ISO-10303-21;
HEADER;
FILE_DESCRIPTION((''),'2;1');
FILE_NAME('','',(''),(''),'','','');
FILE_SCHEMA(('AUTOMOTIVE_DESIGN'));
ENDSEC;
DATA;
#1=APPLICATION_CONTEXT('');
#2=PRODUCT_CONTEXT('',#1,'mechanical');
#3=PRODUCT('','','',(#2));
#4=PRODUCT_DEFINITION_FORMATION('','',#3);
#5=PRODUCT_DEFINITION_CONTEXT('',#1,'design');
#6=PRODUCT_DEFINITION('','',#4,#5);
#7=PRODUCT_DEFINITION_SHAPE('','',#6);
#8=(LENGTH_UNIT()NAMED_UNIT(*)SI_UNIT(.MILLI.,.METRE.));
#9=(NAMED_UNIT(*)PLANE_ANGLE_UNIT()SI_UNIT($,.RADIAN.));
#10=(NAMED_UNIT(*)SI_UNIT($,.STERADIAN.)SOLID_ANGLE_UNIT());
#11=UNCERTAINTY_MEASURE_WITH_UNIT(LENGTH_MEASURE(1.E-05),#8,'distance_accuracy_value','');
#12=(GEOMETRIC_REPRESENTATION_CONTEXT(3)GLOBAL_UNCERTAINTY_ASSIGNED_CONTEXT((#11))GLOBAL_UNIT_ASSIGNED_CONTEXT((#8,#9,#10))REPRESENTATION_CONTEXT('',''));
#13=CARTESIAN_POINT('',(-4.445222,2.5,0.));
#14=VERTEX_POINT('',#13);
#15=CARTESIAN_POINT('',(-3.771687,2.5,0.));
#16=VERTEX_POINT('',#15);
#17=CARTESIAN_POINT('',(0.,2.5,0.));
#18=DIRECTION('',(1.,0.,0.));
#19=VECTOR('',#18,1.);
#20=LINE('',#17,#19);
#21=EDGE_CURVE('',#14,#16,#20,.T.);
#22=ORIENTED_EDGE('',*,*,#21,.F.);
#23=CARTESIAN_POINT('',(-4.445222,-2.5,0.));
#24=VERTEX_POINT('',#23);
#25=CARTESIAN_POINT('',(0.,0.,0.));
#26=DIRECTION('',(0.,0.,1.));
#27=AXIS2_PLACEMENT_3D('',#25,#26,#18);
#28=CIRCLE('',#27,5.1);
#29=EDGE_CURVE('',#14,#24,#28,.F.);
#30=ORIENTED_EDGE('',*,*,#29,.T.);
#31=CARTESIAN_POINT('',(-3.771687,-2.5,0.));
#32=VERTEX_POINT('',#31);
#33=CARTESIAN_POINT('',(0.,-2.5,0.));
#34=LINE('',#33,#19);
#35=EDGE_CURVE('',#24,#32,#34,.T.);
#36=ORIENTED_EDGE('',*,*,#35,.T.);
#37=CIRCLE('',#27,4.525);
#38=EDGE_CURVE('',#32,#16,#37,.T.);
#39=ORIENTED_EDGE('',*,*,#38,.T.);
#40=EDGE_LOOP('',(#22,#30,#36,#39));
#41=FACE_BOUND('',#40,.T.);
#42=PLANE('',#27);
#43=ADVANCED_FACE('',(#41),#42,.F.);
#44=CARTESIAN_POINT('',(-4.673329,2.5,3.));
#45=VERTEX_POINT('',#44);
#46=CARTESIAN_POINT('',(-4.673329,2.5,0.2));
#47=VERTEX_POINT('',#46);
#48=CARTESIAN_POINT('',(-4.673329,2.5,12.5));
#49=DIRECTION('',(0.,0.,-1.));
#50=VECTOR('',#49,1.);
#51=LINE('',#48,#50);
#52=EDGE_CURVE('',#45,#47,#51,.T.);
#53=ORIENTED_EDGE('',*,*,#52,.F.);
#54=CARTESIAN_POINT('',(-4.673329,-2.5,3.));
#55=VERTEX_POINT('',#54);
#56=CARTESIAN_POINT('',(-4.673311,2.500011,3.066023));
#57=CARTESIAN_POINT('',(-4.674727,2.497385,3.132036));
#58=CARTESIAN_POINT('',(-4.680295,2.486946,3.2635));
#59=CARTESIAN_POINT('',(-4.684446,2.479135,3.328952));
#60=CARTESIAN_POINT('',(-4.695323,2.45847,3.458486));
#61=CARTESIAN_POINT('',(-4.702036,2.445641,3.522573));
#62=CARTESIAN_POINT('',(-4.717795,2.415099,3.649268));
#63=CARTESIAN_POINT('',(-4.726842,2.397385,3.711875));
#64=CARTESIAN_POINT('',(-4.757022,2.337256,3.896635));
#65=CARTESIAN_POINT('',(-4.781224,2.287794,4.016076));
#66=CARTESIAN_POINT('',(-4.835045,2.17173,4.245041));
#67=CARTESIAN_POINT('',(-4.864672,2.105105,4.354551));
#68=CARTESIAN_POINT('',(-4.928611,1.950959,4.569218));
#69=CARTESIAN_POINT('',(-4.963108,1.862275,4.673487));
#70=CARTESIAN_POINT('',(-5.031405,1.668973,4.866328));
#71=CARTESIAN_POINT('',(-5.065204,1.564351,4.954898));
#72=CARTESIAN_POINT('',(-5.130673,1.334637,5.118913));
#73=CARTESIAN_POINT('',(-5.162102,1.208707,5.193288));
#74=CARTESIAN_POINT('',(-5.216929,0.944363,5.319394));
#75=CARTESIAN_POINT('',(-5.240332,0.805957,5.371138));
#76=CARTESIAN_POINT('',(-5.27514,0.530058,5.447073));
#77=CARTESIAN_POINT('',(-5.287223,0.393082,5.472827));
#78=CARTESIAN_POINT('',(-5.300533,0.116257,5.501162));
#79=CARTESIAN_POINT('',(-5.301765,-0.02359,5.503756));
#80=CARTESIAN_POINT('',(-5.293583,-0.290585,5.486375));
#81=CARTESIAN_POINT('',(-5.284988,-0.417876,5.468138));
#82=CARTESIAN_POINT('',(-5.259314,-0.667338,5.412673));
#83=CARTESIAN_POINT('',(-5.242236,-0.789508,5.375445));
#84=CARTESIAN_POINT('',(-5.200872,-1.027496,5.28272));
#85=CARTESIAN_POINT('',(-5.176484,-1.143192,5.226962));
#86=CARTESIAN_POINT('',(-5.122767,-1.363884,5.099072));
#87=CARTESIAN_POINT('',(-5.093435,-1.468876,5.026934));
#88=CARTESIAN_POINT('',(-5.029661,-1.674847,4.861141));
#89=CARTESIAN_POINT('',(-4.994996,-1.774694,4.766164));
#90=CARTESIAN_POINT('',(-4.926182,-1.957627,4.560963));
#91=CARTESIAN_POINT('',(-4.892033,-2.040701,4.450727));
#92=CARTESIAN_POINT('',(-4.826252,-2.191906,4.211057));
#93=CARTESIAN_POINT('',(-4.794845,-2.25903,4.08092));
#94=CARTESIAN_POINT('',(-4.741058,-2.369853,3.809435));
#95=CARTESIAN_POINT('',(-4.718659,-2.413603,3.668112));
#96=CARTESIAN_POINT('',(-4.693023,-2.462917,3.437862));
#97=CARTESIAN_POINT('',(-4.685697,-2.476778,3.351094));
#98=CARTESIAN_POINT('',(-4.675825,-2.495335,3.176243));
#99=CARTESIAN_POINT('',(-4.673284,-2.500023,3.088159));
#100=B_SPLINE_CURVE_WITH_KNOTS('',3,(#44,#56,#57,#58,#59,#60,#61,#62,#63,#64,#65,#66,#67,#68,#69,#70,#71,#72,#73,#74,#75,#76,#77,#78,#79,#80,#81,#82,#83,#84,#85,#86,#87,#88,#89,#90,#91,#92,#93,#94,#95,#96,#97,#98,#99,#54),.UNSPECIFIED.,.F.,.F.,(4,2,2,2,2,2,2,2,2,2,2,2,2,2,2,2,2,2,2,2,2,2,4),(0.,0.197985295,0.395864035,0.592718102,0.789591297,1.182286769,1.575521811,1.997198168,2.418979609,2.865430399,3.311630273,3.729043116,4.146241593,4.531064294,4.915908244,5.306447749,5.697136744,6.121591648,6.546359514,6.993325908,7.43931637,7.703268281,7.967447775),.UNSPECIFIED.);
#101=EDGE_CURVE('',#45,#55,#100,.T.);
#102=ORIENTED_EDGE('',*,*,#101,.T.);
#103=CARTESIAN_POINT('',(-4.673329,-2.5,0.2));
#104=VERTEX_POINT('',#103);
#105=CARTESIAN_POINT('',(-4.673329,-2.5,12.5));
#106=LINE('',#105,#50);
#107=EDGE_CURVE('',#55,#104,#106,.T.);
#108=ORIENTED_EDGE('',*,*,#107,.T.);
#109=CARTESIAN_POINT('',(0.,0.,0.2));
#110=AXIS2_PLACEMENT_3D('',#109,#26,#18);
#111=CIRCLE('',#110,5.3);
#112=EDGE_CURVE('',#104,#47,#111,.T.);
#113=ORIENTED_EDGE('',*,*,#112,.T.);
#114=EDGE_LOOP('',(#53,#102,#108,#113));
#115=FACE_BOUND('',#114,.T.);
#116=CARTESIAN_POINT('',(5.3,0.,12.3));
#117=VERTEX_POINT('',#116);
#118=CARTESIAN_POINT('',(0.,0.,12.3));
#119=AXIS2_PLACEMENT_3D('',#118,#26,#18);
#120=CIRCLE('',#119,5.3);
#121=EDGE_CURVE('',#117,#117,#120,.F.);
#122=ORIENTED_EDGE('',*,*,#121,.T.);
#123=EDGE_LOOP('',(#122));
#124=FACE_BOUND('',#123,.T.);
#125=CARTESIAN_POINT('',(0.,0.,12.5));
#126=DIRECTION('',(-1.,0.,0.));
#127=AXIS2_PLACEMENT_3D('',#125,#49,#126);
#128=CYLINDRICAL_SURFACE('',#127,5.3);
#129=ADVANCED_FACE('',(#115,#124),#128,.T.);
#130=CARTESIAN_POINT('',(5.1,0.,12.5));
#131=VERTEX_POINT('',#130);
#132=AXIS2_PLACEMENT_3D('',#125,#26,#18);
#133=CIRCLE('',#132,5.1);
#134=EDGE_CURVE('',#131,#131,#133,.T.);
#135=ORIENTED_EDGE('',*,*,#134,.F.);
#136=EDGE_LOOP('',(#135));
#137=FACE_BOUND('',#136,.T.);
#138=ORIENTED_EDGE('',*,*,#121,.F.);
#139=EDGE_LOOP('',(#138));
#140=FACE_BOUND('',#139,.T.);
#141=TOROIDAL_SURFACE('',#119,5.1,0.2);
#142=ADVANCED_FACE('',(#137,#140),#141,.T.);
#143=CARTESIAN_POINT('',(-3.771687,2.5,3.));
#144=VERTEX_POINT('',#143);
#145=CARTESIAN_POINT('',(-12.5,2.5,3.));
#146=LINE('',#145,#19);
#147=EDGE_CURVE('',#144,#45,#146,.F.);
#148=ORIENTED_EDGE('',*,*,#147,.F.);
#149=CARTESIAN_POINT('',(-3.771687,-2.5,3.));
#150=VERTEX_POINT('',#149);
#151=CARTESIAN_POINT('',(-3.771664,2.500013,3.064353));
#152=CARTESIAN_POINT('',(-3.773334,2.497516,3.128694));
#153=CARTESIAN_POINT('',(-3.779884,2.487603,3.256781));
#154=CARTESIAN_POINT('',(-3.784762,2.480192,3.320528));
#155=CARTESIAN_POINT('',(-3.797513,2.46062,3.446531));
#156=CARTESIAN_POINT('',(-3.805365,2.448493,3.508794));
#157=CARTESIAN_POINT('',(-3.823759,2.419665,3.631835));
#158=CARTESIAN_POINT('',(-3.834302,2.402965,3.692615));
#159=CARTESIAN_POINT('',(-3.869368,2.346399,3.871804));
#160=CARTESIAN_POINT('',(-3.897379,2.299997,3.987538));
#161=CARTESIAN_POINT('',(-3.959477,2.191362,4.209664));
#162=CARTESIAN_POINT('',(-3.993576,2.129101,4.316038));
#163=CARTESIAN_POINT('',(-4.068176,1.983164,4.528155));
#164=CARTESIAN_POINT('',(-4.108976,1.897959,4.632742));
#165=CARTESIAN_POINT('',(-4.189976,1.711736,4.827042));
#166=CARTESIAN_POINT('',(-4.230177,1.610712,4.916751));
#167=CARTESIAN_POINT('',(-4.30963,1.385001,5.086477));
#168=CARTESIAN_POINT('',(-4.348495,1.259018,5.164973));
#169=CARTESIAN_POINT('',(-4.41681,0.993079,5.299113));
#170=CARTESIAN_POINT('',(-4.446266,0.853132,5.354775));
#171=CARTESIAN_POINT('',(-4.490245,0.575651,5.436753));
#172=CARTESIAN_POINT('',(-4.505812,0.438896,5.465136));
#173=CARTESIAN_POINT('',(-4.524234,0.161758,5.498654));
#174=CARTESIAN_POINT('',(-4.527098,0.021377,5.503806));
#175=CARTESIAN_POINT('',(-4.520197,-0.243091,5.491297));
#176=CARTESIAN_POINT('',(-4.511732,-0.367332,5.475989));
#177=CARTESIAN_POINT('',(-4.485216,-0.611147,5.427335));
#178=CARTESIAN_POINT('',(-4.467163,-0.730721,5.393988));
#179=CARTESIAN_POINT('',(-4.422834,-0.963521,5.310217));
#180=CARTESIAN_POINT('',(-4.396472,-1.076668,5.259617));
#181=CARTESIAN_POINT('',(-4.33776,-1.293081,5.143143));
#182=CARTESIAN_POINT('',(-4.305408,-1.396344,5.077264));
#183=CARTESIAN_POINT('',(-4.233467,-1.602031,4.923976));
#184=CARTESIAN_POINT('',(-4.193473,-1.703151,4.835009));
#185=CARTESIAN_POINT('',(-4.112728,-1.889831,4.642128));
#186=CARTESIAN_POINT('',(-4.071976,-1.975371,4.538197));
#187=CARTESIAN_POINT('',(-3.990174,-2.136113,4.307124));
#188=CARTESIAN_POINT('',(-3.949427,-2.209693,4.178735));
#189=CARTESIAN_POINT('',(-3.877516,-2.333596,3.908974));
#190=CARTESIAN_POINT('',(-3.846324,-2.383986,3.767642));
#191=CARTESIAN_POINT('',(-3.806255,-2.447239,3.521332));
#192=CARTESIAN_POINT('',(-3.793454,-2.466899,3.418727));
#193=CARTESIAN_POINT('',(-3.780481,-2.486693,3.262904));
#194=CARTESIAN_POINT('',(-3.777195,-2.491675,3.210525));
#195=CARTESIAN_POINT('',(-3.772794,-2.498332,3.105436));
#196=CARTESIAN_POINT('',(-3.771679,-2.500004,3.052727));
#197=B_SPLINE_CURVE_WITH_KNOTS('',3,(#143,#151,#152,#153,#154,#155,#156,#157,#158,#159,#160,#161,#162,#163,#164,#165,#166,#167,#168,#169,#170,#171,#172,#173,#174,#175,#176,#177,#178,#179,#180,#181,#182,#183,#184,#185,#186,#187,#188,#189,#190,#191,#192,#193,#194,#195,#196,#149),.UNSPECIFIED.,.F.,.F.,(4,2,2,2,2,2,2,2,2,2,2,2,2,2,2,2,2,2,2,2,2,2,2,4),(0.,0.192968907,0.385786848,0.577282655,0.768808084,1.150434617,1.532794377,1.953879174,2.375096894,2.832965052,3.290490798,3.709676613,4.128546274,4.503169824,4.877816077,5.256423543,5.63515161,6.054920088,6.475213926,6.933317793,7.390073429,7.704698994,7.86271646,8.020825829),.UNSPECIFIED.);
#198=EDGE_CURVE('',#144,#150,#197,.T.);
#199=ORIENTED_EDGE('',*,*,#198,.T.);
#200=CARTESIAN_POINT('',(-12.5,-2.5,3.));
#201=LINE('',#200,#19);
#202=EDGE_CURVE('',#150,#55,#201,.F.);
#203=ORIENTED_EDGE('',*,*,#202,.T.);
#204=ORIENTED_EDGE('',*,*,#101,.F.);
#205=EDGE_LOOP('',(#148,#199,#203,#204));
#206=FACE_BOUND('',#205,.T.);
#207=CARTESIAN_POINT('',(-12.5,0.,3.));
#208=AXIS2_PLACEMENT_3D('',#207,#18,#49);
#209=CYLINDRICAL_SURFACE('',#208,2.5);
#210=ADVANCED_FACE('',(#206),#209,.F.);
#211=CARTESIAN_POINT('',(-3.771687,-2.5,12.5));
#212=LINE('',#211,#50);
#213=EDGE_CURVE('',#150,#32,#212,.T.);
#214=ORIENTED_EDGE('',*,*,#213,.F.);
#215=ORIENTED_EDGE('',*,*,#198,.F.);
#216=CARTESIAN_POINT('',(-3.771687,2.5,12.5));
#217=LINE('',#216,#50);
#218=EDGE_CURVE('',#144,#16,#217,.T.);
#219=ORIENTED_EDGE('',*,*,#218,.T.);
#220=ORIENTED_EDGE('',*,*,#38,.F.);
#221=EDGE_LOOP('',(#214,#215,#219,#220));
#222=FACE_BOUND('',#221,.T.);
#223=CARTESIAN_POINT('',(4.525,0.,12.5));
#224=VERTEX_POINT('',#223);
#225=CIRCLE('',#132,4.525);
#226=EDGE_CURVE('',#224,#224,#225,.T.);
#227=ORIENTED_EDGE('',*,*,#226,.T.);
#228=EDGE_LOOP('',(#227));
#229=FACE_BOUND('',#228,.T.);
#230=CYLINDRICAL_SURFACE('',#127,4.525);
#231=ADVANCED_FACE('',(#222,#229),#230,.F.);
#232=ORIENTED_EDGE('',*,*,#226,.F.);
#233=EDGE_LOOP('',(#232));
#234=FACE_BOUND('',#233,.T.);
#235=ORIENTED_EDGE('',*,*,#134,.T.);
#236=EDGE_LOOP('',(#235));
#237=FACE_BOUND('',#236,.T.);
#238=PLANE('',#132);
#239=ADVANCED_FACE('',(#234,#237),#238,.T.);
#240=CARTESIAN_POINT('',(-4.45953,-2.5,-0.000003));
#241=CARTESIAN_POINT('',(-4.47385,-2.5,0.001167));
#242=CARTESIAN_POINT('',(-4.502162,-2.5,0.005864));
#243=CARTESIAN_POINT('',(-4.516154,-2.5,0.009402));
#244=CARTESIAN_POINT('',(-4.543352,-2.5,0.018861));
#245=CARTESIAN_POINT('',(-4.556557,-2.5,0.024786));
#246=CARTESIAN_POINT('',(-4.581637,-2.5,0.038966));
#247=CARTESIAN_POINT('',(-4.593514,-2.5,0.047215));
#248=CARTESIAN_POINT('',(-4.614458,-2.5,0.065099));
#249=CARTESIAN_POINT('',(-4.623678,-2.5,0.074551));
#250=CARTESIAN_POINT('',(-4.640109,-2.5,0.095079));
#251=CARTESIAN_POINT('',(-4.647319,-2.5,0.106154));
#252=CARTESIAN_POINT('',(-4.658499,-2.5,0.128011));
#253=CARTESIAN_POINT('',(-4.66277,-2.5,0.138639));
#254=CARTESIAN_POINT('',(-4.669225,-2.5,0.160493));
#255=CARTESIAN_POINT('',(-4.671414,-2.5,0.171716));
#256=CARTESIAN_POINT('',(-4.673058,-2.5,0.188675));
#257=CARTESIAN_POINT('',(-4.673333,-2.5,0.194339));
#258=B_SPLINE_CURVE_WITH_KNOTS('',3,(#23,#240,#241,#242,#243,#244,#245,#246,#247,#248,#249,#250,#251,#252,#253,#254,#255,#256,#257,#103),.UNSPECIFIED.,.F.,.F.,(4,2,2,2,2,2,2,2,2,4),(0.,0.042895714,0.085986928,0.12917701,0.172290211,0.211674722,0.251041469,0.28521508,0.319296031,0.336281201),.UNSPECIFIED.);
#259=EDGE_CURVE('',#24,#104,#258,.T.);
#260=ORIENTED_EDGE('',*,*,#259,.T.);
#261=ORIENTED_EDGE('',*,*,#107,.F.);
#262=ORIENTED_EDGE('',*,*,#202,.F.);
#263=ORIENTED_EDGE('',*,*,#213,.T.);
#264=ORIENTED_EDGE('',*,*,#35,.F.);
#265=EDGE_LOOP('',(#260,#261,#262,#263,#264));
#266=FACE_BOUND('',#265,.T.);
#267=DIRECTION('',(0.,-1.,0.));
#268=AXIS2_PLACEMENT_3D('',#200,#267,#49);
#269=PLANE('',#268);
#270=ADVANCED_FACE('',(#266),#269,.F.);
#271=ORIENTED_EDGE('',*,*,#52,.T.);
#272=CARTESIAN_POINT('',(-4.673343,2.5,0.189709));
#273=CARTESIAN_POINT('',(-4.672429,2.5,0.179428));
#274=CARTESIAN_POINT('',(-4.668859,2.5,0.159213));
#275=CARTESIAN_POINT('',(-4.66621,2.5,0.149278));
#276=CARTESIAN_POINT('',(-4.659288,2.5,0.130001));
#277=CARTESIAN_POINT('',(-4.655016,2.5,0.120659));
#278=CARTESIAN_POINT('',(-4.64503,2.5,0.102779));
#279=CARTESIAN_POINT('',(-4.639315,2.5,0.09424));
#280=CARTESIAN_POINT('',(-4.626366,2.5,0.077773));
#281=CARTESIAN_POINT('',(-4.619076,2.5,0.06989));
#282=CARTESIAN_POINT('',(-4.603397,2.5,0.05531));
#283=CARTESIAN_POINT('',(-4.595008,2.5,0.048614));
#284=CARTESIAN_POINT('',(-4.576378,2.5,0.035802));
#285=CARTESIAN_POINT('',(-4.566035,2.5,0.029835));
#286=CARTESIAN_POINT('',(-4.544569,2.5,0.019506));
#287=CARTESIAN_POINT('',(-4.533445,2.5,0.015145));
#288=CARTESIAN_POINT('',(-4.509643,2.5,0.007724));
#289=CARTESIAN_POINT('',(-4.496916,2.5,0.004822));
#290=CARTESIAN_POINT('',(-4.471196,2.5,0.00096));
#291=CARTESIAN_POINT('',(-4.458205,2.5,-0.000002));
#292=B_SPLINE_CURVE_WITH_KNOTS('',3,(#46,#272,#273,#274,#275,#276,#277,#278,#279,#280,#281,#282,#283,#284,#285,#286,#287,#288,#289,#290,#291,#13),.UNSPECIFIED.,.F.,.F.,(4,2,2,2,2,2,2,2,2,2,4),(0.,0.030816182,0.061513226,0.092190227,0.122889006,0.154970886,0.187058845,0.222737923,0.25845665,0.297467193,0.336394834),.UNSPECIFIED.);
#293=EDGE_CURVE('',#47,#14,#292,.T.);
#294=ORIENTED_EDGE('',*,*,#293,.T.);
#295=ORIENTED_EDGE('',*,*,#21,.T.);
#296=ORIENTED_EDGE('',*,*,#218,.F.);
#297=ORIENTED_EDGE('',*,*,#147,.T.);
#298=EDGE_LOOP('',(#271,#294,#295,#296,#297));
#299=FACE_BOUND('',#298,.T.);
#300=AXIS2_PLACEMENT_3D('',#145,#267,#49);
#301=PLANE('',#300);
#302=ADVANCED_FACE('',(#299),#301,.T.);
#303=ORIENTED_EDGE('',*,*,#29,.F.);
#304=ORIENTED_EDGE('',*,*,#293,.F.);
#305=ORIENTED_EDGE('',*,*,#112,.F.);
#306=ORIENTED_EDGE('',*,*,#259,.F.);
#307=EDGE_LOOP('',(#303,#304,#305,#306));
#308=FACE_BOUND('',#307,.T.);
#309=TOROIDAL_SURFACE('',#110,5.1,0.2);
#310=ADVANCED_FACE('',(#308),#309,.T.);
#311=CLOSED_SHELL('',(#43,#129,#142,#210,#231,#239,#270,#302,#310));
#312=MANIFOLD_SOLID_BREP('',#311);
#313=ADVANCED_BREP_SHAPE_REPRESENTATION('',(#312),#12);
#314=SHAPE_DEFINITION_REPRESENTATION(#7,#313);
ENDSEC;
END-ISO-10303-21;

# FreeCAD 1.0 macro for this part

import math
import FreeCAD as App
import Part
import Sketcher

V = App.Vector
Q = App.Units.Quantity


def edges_at(feature, points):
    """Names of the edges that pass closest to the given points."""
    edges = feature.Shape.Edges
    near = lambda p: min(range(len(edges)), key=lambda i: edges[i].distToShape(Part.Vertex(*p))[0])
    return sorted({f"Edge{near(p) + 1}" for p in points})

doc = App.newDocument("Part")
params = doc.addObject("Spreadsheet::Sheet", "Params")
for row, (alias, value) in enumerate([
    ("sketch1_diameter", "10.6 mm"),
    ("sketch1_diameter2", "9.05 mm"),
    ("pad1_length", "12.5 mm"),
    ("sketch2_radius", "2.5 mm"),
    ("pocket1_length", "12.5 mm"),
    ("fillet_radius", "0.2 mm"),
], start=1):
    params.set(f"A{row}", alias)
    params.set(f"B{row}", "=" + value)
    params.setAlias(f"B{row}", alias)

body = doc.addObject("PartDesign::Body", "Body")

# Sketch on XY plane
sketch1 = body.newObject("Sketcher::SketchObject", "Sketch")
sketch1.AttachmentSupport = (doc.getObject("XY_Plane"), [""])
sketch1.MapMode = "FlatFace"
sketch1.addGeometry([
    Part.Circle(V(0, 0, 0), V(0, 0, 1), 5.3),
    Part.Circle(V(0, 0, 0), V(0, 0, 1), 4.5),
], False)
sketch1.addConstraint([
    Sketcher.Constraint("Coincident", 0, 3, -1, 1),
    Sketcher.Constraint("Coincident", 1, 3, -1, 1),
    Sketcher.Constraint("Diameter", 0, Q("10.6 mm")),
    Sketcher.Constraint("Diameter", 1, Q("9.05 mm")),
])
sketch1.setExpression("Constraints[2]", "Params.sketch1_diameter")
sketch1.setExpression("Constraints[3]", "Params.sketch1_diameter2")
pad1 = body.newObject("PartDesign::Pad", "Pad")
pad1.Profile = sketch1
pad1.setExpression("Length", "Params.pad1_length")

# Sketch on YZ plane
sketch2 = body.newObject("Sketcher::SketchObject", "Sketch001")
sketch2.AttachmentSupport = (doc.getObject("YZ_Plane"), [""])
sketch2.MapMode = "FlatFace"
sketch2.addGeometry([
    Part.LineSegment(V(-2.5, 3, 0), V(-2.5, -1, 0)),
    Part.LineSegment(V(-2.5, -1, 0), V(2.5, -1, 0)),
    Part.LineSegment(V(2.5, -1, 0), V(2.5, 3, 0)),
    Part.ArcOfCircle(Part.Circle(V(0, 3, 0), V(0, 0, 1), 2.5), math.radians(0), math.radians(180)),
], False)
sketch2.addConstraint([
    Sketcher.Constraint("Coincident", 0, 2, 1, 1),
    Sketcher.Constraint("Coincident", 1, 2, 2, 1),
    Sketcher.Constraint("Tangent", 2, 2, 3, 1),
    Sketcher.Constraint("Tangent", 3, 2, 0, 1),
    Sketcher.Constraint("Vertical", 0),
    Sketcher.Constraint("Horizontal", 1),
    Sketcher.Constraint("Vertical", 2),
    Sketcher.Constraint("PointOnObject", 3, 3, -2),
    Sketcher.Constraint("Radius", 3, Q("2.5 mm")),
    Sketcher.Constraint("DistanceY", -1, 1, 3, 3, Q("3 mm")),
    Sketcher.Constraint("DistanceY", 0, 2, 0, 1, Q("3.97043 mm")),
])
sketch2.setExpression("Constraints[8]", "Params.sketch2_radius")
pocket1 = body.newObject("PartDesign::Pocket", "Pocket")
pocket1.Profile = sketch2
pocket1.setExpression("Length", "Params.pocket1_length")
doc.recompute()

fillet = body.newObject("PartDesign::Fillet", "Fillet")
fillet.Base = (pocket1, edges_at(pocket1, [(1.289, 5.141, 0), (-5.3, 0, 12.5)]))
fillet.setExpression("Radius", "Params.fillet_radius")

doc.recompute()
